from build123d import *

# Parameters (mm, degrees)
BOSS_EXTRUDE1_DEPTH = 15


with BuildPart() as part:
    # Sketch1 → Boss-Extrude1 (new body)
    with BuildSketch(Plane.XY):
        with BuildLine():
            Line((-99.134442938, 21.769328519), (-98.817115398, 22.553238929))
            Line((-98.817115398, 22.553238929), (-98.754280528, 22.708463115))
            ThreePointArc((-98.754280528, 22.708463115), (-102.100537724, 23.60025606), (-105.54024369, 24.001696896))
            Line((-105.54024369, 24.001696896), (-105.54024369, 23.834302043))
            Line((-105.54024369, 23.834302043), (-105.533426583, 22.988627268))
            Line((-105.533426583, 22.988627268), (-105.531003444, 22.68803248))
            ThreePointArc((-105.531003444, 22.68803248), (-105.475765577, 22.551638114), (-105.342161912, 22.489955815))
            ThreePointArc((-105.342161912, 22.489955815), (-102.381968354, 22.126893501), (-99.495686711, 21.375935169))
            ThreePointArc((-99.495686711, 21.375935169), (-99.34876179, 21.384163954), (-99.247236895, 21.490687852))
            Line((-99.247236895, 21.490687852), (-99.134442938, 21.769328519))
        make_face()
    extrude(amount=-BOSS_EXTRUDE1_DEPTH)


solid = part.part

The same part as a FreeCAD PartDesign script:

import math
import FreeCAD as App
import Part
import Sketcher
from FreeCAD import Vector
Q = App.Units.Quantity

doc = App.newDocument("Part")
body = doc.addObject("PartDesign::Body", "Body")

# Sketch on XY plane
sketch1 = body.newObject("Sketcher::SketchObject", "Sketch")
sketch1.AttachmentSupport = (doc.getObject("XY_Plane"), [""])
sketch1.MapMode = "FlatFace"
sketch1.addGeometry([
    Part.LineSegment(Vector(-99.13, 21.77, 0), Vector(-98.82, 22.55, 0)),  # 0
    Part.LineSegment(Vector(-98.82, 22.55, 0), Vector(-98.75, 22.71, 0)),  # 1
    Part.ArcOfCircle(Part.Circle(Vector(-106.6, 0, 0), Vector(0, 0, 1), 24.02), math.radians(70.94), math.radians(87.48)),  # 2
    Part.LineSegment(Vector(-105.54, 24, 0), Vector(-105.54, 23.83, 0)),  # 3
    Part.LineSegment(Vector(-105.54, 23.83, 0), Vector(-105.53, 22.99, 0)),  # 4
    Part.LineSegment(Vector(-105.53, 22.99, 0), Vector(-105.53, 22.69, 0)),  # 5
    Part.ArcOfCircle(Part.Circle(Vector(-105.33, 22.69, 0), Vector(0, 0, 1), 0.2), math.radians(-180), math.radians(-93)),  # 6
    Part.ArcOfCircle(Part.Circle(Vector(-106.6, 0, 0), Vector(0, 0, 1), 22.53), math.radians(71.62), math.radians(86.8)),  # 7
    Part.ArcOfCircle(Part.Circle(Vector(-99.43, 21.57, 0), Vector(0, 0, 1), 0.2), math.radians(-108), math.radians(-22)),  # 8
    Part.LineSegment(Vector(-99.25, 21.49, 0), Vector(-99.13, 21.77, 0)),  # 9
], False)
sketch1.addConstraint([
    Sketcher.Constraint("Coincident", 0, 2, 1, 1),
    Sketcher.Constraint("Coincident", 1, 2, 2, 1),
    Sketcher.Constraint("Coincident", 2, 2, 3, 1),
    Sketcher.Constraint("Coincident", 3, 2, 4, 1),
    Sketcher.Constraint("Coincident", 4, 2, 5, 1),
    Sketcher.Constraint("Tangent", 5, 2, 6, 1),
    Sketcher.Constraint("Tangent", 6, 2, 7, 2),
    Sketcher.Constraint("Tangent", 7, 1, 8, 1),
    Sketcher.Constraint("Tangent", 8, 2, 9, 1),
    Sketcher.Constraint("Coincident", 9, 2, 0, 1),
    Sketcher.Constraint("Vertical", 3),
    Sketcher.Constraint("Coincident", 7, 3, 2, 3),
    Sketcher.Constraint("Equal", 6, 8),
    Sketcher.Constraint("PointOnObject", 2, 3, -1),
    Sketcher.Constraint("Parallel", 0, 1),
    Sketcher.Constraint("Parallel", 4, 5),
    Sketcher.Constraint("Parallel", 1, 9),
    Sketcher.Constraint("Equal", 0, 4),
    Sketcher.Constraint("Equal", 5, 9),
    Sketcher.Constraint("Radius", 6, Q("0.2 mm")),
    Sketcher.Constraint("Radius", 2, Q("24.025 mm")),
    Sketcher.Constraint("Radius", 7, Q("22.525 mm")),
    Sketcher.Constraint("DistanceY", 8, 3, 5, 2, Q("1.1223 mm")),
    Sketcher.Constraint("Distance", 1, Q("0.16746 mm")),
    Sketcher.Constraint("DistanceY", 3, 2, 3, 1, Q("0.167395 mm")),
    Sketcher.Constraint("DistanceX", 6, 3, -1, 1, Q("105.33101 mm")),
    Sketcher.Constraint("DistanceY", -1, 1, 0, 2, Q("22.553239 mm")),
    Sketcher.Constraint("DistanceX", 1, 2, -1, 1, Q("98.754281 mm")),
    Sketcher.Constraint("DistanceY", -1, 1, 9, 2, Q("21.769329 mm")),
])
pad1 = body.newObject("PartDesign::Pad", "Pad")
pad1.Profile = sketch1
pad1.Length = 15
pad1.Reversed = True

doc.recompute()
